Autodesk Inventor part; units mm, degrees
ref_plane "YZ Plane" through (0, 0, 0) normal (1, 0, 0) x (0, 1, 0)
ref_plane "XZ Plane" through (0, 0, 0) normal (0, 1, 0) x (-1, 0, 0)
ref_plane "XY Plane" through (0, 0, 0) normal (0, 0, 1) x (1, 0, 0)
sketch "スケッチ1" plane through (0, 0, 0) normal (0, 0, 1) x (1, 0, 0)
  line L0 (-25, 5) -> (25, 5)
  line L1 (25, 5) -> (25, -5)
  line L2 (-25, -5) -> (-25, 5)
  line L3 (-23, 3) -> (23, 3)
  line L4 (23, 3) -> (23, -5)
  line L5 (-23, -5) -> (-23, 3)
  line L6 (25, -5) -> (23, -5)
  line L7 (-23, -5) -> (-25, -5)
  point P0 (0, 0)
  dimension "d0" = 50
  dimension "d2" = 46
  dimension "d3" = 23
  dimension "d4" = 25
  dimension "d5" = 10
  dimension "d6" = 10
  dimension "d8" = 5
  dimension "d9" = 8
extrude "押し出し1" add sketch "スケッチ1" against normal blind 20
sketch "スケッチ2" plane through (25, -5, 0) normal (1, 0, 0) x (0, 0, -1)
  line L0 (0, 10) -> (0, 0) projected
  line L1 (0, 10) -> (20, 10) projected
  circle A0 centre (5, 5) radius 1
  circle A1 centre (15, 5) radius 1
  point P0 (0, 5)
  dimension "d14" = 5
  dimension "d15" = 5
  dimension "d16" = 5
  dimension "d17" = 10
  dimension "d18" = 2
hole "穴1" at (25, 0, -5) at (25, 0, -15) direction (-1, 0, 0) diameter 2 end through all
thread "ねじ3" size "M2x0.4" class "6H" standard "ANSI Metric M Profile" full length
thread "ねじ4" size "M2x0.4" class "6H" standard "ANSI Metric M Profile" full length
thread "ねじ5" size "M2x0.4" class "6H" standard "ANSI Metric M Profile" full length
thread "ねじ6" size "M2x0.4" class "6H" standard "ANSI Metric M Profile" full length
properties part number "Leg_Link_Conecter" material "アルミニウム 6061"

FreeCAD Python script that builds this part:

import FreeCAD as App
import Part
import Sketcher
from FreeCAD import Vector
Q = App.Units.Quantity

doc = App.newDocument("Part")
body = doc.addObject("PartDesign::Body", "Body")

sketch1 = body.newObject("Sketcher::SketchObject", "Sketch")
sketch1.AttachmentSupport = (doc.getObject("XY_Plane"), [""])
sketch1.MapMode = "FlatFace"
sketch1.addGeometry([
    Part.LineSegment(Vector(25, 5, 0), Vector(-25, 5, 0)),
    Part.LineSegment(Vector(-25, 5, 0), Vector(-25, -5, 0)),
    Part.LineSegment(Vector(-25, -5, 0), Vector(-23, -5, 0)),
    Part.LineSegment(Vector(-23, -5, 0), Vector(-23, 3, 0)),
    Part.LineSegment(Vector(-23, 3, 0), Vector(23, 3, 0)),
    Part.LineSegment(Vector(23, 3, 0), Vector(23, -5, 0)),
    Part.LineSegment(Vector(23, -5, 0), Vector(25, -5, 0)),
    Part.LineSegment(Vector(25, -5, 0), Vector(25, 5, 0)),
], False)
sketch1.addConstraint([
    Sketcher.Constraint("Coincident", 0, 2, 1, 1),
    Sketcher.Constraint("Coincident", 1, 2, 2, 1),
    Sketcher.Constraint("Coincident", 2, 2, 3, 1),
    Sketcher.Constraint("Coincident", 3, 2, 4, 1),
    Sketcher.Constraint("Coincident", 4, 2, 5, 1),
    Sketcher.Constraint("Coincident", 5, 2, 6, 1),
    Sketcher.Constraint("Coincident", 6, 2, 7, 1),
    Sketcher.Constraint("Coincident", 7, 2, 0, 1),
    Sketcher.Constraint("Horizontal", 0),
    Sketcher.Constraint("Vertical", 1),
    Sketcher.Constraint("Horizontal", 2),
    Sketcher.Constraint("Vertical", 3),
    Sketcher.Constraint("Horizontal", 4),
    Sketcher.Constraint("Vertical", 5),
    Sketcher.Constraint("Horizontal", 6),
    Sketcher.Constraint("Vertical", 7),
    Sketcher.Constraint("Symmetric", 0, 2, 6, 2, -1, 1),
    Sketcher.Constraint("Symmetric", 2, 2, 5, 2, -2),
    Sketcher.Constraint("DistanceX", 0, 2, 0, 1, Q("50 mm")),
    Sketcher.Constraint("DistanceX", 4, 1, 4, 2, Q("46 mm")),
    Sketcher.Constraint("DistanceY", 1, 2, 1, 1, Q("10 mm")),
    Sketcher.Constraint("DistanceY", 3, 1, 3, 2, Q("8 mm")),
])
pad1 = body.newObject("PartDesign::Pad", "Pad")
pad1.Profile = sketch1
pad1.Length = 20
pad1.Reversed = True

sketch2 = body.newObject("Sketcher::SketchObject", "Sketch001")
sketch2.AttachmentSupport = (doc.getObject("YZ_Plane"), [""])
sketch2.MapMode = "FlatFace"
sketch2.AttachmentOffset = App.Placement(Vector(0, 0, 25), App.Rotation())
sketch2.addGeometry([
    Part.Circle(Vector(0, -5, 0), Vector(0, 0, 1), 1),
    Part.Circle(Vector(0, -15, 0), Vector(0, 0, 1), 1),
], False)
sketch2.addConstraint([
    Sketcher.Constraint("Equal", 0, 1),
    Sketcher.Constraint("PointOnObject", 0, 3, -2),
    Sketcher.Constraint("PointOnObject", 1, 3, -2),
    Sketcher.Constraint("Diameter", 0, Q("2 mm")),
    Sketcher.Constraint("DistanceY", 0, 3, -1, 1, Q("5 mm")),
    Sketcher.Constraint("DistanceY", 1, 3, -1, 1, Q("15 mm")),
])
doc.recompute()
hole = body.newObject("PartDesign::Hole", "Hole")
hole.Profile = sketch2
hole.ThreadType = "None"
hole.Diameter = 2
hole.DepthType = "ThroughAll"

doc.recompute()
